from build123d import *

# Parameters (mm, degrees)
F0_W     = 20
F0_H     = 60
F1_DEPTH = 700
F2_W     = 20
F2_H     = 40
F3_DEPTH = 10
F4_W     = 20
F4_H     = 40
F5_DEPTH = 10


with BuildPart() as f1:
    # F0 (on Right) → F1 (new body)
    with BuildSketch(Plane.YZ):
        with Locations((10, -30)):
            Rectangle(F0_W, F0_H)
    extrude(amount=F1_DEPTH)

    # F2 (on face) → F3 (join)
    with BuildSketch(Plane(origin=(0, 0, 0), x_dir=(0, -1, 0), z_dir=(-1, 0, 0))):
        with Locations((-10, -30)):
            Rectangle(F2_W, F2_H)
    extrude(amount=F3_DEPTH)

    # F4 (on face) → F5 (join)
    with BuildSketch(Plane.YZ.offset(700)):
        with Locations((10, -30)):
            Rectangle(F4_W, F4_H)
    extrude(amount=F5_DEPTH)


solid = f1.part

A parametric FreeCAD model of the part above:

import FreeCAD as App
import Part
import Sketcher
Q = App.Units.Quantity

doc = App.newDocument("Part")
body = doc.addObject("PartDesign::Body", "Body")

# Sketch on YZ plane
sketch1 = body.newObject("Sketcher::SketchObject", "Sketch")
sketch1.AttachmentSupport = (doc.getObject("YZ_Plane"), [""])
sketch1.MapMode = "FlatFace"
sketch1.addGeometry([
    Part.LineSegment(App.Vector(0, 0, 0), App.Vector(0, -60, 0)),
    Part.LineSegment(App.Vector(0, -60, 0), App.Vector(20, -60, 0)),
    Part.LineSegment(App.Vector(20, -60, 0), App.Vector(20, 0, 0)),
    Part.LineSegment(App.Vector(20, 0, 0), App.Vector(0, 0, 0)),
], False)
sketch1.addConstraint([
    Sketcher.Constraint("Coincident", 0, 2, 1, 1),
    Sketcher.Constraint("Coincident", 1, 2, 2, 1),
    Sketcher.Constraint("Coincident", 2, 2, 3, 1),
    Sketcher.Constraint("Coincident", 3, 2, 0, 1),
    Sketcher.Constraint("Vertical", 0),
    Sketcher.Constraint("Horizontal", 1),
    Sketcher.Constraint("Vertical", 2),
    Sketcher.Constraint("Horizontal", 3),
    Sketcher.Constraint("Coincident", 3, 2, -1, 1),
    Sketcher.Constraint("DistanceX", 1, 1, 1, 2, Q("20 mm")),
    Sketcher.Constraint("DistanceY", 0, 2, 0, 1, Q("60 mm")),
])
pad1 = body.newObject("PartDesign::Pad", "Pad")
pad1.Profile = sketch1
pad1.Length = 700

# Sketch on YZ plane
sketch2 = body.newObject("Sketcher::SketchObject", "Sketch001")
sketch2.AttachmentSupport = (doc.getObject("YZ_Plane"), [""])
sketch2.MapMode = "FlatFace"
sketch2.addGeometry([
    Part.LineSegment(App.Vector(20, -10, 0), App.Vector(20, -50, 0)),
    Part.LineSegment(App.Vector(20, -50, 0), App.Vector(0, -50, 0)),
    Part.LineSegment(App.Vector(0, -50, 0), App.Vector(0, -10, 0)),
    Part.LineSegment(App.Vector(0, -10, 0), App.Vector(20, -10, 0)),
], False)
sketch2.addConstraint([
    Sketcher.Constraint("Coincident", 0, 2, 1, 1),
    Sketcher.Constraint("Coincident", 1, 2, 2, 1),
    Sketcher.Constraint("Coincident", 2, 2, 3, 1),
    Sketcher.Constraint("Coincident", 3, 2, 0, 1),
    Sketcher.Constraint("Vertical", 0),
    Sketcher.Constraint("Horizontal", 1),
    Sketcher.Constraint("Vertical", 2),
    Sketcher.Constraint("Horizontal", 3),
    Sketcher.Constraint("PointOnObject", 1, 2, -2),
    Sketcher.Constraint("DistanceX", 1, 2, 1, 1, Q("20 mm")),
    Sketcher.Constraint("DistanceY", 0, 2, 0, 1, Q("40 mm")),
    Sketcher.Constraint("DistanceY", 0, 2, -1, 1, Q("50 mm")),
])
pad2 = body.newObject("PartDesign::Pad", "Pad001")
pad2.Profile = sketch2
pad2.Length = 10
pad2.Reversed = True

# Sketch on YZ plane
sketch3 = body.newObject("Sketcher::SketchObject", "Sketch002")
sketch3.AttachmentSupport = (doc.getObject("YZ_Plane"), [""])
sketch3.MapMode = "FlatFace"
sketch3.AttachmentOffset = App.Placement(App.Vector(0, 0, 700), App.Rotation())
sketch3.addGeometry([
    Part.LineSegment(App.Vector(0, -10, 0), App.Vector(0, -50, 0)),
    Part.LineSegment(App.Vector(0, -50, 0), App.Vector(20, -50, 0)),
    Part.LineSegment(App.Vector(20, -50, 0), App.Vector(20, -10, 0)),
    Part.LineSegment(App.Vector(20, -10, 0), App.Vector(0, -10, 0)),
], False)
sketch3.addConstraint([
    Sketcher.Constraint("Coincident", 0, 2, 1, 1),
    Sketcher.Constraint("Coincident", 1, 2, 2, 1),
    Sketcher.Constraint("Coincident", 2, 2, 3, 1),
    Sketcher.Constraint("Coincident", 3, 2, 0, 1),
    Sketcher.Constraint("Vertical", 0),
    Sketcher.Constraint("Horizontal", 1),
    Sketcher.Constraint("Vertical", 2),
    Sketcher.Constraint("Horizontal", 3),
    Sketcher.Constraint("PointOnObject", 0, 2, -2),
    Sketcher.Constraint("DistanceX", 1, 1, 1, 2, Q("20 mm")),
    Sketcher.Constraint("DistanceY", 0, 2, 0, 1, Q("40 mm")),
    Sketcher.Constraint("DistanceY", 0, 2, -1, 1, Q("50 mm")),
])
pad3 = body.newObject("PartDesign::Pad", "Pad002")
pad3.Profile = sketch3
pad3.Length = 10

doc.recompute()
